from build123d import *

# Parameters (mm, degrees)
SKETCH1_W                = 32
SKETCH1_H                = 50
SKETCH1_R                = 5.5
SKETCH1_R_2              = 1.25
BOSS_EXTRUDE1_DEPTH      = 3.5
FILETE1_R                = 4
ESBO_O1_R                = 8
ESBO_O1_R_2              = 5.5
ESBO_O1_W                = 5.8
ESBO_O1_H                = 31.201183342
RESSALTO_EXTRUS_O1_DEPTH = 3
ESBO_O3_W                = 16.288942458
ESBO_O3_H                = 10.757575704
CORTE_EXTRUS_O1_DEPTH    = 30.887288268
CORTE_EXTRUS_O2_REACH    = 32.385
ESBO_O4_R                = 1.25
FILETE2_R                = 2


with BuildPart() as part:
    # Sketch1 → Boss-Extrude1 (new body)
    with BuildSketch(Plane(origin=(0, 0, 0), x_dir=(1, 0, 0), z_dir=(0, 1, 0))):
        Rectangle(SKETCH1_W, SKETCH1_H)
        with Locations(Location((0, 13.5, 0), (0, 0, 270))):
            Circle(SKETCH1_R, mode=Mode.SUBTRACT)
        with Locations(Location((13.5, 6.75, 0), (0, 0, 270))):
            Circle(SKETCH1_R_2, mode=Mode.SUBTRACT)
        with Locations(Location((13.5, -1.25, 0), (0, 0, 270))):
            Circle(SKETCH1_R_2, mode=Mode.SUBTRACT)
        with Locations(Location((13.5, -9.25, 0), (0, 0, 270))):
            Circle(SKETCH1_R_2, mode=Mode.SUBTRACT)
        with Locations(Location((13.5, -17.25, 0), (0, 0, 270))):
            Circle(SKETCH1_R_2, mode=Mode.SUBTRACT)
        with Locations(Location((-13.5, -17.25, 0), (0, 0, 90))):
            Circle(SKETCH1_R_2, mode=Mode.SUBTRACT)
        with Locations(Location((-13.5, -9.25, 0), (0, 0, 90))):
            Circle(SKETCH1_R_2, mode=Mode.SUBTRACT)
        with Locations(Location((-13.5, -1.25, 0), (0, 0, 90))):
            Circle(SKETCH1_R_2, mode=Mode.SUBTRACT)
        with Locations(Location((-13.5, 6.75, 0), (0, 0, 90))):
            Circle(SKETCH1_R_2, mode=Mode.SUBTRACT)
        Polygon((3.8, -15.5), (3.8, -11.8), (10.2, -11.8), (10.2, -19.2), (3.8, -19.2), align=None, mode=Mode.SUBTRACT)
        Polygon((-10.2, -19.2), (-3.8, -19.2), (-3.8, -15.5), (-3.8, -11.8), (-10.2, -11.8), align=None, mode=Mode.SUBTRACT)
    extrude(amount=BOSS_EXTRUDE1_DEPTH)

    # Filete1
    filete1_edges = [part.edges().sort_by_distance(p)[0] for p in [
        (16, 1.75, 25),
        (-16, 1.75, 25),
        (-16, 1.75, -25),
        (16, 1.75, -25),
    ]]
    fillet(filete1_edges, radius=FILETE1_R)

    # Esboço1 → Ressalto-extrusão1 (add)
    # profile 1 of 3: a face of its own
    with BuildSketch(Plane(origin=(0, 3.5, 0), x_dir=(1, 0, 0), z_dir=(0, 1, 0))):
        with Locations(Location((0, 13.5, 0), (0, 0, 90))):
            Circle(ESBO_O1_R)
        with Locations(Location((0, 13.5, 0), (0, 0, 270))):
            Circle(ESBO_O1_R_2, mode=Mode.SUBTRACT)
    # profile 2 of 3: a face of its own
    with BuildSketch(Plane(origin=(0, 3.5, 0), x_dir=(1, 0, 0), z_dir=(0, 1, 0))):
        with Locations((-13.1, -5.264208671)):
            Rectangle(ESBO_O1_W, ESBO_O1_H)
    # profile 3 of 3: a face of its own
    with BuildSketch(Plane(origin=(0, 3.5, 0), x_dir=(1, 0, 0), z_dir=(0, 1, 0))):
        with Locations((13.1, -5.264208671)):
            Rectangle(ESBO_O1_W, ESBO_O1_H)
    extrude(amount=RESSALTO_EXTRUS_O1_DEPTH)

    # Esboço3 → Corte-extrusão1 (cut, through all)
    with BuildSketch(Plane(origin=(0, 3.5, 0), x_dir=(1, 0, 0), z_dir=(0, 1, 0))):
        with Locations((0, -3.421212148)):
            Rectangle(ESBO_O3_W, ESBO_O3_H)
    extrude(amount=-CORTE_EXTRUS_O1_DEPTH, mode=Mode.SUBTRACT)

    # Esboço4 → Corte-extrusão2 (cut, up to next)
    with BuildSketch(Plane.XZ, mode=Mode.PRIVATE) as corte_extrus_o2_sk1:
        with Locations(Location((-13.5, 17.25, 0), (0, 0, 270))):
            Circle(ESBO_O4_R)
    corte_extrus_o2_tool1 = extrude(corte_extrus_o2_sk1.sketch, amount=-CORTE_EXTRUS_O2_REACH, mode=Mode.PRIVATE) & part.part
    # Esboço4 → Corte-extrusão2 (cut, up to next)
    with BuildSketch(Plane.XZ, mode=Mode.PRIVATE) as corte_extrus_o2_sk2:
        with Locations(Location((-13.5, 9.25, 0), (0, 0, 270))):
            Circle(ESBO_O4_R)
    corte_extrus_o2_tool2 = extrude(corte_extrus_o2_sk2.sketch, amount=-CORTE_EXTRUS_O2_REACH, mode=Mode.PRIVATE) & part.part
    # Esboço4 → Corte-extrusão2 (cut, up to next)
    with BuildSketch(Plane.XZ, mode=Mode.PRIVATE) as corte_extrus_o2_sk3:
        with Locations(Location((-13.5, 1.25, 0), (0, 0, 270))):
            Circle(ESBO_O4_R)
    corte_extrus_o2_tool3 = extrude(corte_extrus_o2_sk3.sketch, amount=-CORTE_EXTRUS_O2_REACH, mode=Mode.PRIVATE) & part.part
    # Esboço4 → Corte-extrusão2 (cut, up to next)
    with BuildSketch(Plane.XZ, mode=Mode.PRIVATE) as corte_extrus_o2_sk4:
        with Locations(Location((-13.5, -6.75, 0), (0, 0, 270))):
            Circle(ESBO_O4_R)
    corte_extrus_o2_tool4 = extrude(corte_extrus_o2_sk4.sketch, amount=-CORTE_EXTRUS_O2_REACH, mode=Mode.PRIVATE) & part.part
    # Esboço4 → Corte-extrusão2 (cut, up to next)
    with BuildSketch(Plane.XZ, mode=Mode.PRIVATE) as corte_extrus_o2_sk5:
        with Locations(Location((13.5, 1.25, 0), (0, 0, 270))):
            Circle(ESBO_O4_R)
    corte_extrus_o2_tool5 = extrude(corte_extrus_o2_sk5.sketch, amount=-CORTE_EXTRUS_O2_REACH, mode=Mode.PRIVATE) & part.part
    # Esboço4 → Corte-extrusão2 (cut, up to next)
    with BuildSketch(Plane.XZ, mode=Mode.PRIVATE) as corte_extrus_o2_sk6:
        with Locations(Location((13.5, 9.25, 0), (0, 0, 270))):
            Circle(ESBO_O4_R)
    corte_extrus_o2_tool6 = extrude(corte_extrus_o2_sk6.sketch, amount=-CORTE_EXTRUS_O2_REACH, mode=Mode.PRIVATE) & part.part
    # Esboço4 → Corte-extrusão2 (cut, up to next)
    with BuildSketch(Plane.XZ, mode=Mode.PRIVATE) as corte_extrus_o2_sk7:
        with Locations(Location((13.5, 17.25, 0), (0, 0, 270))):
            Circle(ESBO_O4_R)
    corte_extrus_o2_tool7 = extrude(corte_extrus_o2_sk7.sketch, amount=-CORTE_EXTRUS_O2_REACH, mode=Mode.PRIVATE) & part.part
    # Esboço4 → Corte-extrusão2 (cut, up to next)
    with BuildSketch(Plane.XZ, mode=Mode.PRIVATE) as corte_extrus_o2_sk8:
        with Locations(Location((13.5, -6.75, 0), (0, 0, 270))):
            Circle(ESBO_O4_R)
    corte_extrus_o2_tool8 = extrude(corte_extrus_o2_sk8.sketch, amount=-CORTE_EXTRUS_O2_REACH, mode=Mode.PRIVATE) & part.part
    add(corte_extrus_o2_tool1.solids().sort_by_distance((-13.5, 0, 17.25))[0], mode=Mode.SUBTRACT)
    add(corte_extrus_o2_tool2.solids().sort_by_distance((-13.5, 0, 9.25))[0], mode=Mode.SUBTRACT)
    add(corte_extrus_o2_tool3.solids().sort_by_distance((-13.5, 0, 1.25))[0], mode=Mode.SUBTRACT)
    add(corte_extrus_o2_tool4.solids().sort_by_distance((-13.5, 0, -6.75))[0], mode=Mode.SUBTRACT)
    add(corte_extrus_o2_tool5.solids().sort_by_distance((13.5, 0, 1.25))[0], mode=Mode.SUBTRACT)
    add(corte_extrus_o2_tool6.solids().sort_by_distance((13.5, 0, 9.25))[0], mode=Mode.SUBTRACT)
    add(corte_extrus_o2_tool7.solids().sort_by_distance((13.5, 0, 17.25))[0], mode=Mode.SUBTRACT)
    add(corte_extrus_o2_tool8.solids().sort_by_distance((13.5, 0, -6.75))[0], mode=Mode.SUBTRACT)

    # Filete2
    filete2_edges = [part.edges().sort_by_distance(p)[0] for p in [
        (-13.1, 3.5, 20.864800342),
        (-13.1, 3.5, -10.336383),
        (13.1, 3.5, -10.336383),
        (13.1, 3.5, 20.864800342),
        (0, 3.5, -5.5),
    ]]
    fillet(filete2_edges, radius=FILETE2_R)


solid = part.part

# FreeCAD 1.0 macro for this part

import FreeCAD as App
import Part
import Sketcher


def edges_at(feature, points):
    """Names of the edges that pass closest to the given points."""
    edges = feature.Shape.Edges
    near = lambda p: min(range(len(edges)), key=lambda i: edges[i].distToShape(Part.Vertex(*p))[0])
    return sorted({f"Edge{near(p) + 1}" for p in points})


def add_polygon(sketch, points):
    """Adds a closed chain of lines whose ends are joined by coincident constraints."""
    first, n = sketch.GeometryCount, len(points)
    for a, b in zip(points, points[1:] + points[:1]):
        sketch.addGeometry(Part.LineSegment(App.Vector(*a, 0), App.Vector(*b, 0)), False)
    for i in range(n):
        sketch.addConstraint(Sketcher.Constraint("Coincident", first + i, 2, first + (i + 1) % n, 1))

doc = App.newDocument("Part")
body = doc.addObject("PartDesign::Body", "Body")

# Sketch on XZ plane
sketch1 = doc.addObject("Sketcher::SketchObject", "Sketch")
body.addObject(sketch1)
sketch1.AttachmentSupport = (doc.XZ_Plane, [""])
sketch1.MapMode = "FlatFace"
add_polygon(sketch1, [(-16, -25), (-16, 25), (16, 25), (16, -25)])  # lines 0-3
sketch1.addGeometry(Part.Circle(App.Vector(-13.5, 17.2, 0), App.Vector(0, 0, 1), 1.2), False)  # 4
add_polygon(sketch1, [(-3.8, 19.2), (-10.2, 19.2), (-10.2, 11.8), (-3.8, 11.8)])  # lines 5-8
sketch1.addGeometry(Part.Circle(App.Vector(-13.5, 9.2, 0), App.Vector(0, 0, 1), 1.2), False)  # 9
sketch1.addGeometry(Part.Circle(App.Vector(-13.5, 1.2, 0), App.Vector(0, 0, 1), 1.2), False)  # 10
add_polygon(sketch1, [(3.8, 19.2), (3.8, 11.8), (10.2, 11.8), (10.2, 19.2)])  # lines 11-14
sketch1.addGeometry(Part.Circle(App.Vector(13.5, 17.2, 0), App.Vector(0, 0, 1), 1.2), False)  # 15
sketch1.addGeometry(Part.Circle(App.Vector(13.5, 9.2, 0), App.Vector(0, 0, 1), 1.2), False)  # 16
sketch1.addGeometry(Part.Circle(App.Vector(13.5, 1.2, 0), App.Vector(0, 0, 1), 1.2), False)  # 17
sketch1.addGeometry(Part.Circle(App.Vector(-13.5, -6.8, 0), App.Vector(0, 0, 1), 1.2), False)  # 18
sketch1.addGeometry(Part.Circle(App.Vector(13.5, -6.8, 0), App.Vector(0, 0, 1), 1.2), False)  # 19
sketch1.addGeometry(Part.Circle(App.Vector(0, -13.5, 0), App.Vector(0, 0, 1), 5.5), False)  # 20
sketch1.addConstraint([
    Sketcher.Constraint("Vertical", 0),
    Sketcher.Constraint("Horizontal", 1),
    Sketcher.Constraint("Vertical", 2),
    Sketcher.Constraint("Horizontal", 3),
    Sketcher.Constraint("Horizontal", 5),
    Sketcher.Constraint("Vertical", 6),
    Sketcher.Constraint("Horizontal", 7),
    Sketcher.Constraint("Vertical", 8),
    Sketcher.Constraint("Vertical", 11),
    Sketcher.Constraint("Horizontal", 12),
    Sketcher.Constraint("Vertical", 13),
    Sketcher.Constraint("Horizontal", 14),
    Sketcher.Constraint("Equal", 4, 9),
    Sketcher.Constraint("Equal", 9, 10),
    Sketcher.Constraint("Equal", 10, 15),
    Sketcher.Constraint("Equal", 15, 16),
    Sketcher.Constraint("Equal", 16, 17),
    Sketcher.Constraint("Equal", 17, 18),
    Sketcher.Constraint("Equal", 18, 19),
    Sketcher.Constraint("Symmetric", 0, 2, 2, 2, -1, 1),
    Sketcher.Constraint("Symmetric", 4, 3, 15, 3, -2),
    Sketcher.Constraint("Symmetric", 9, 3, 16, 3, -2),
    Sketcher.Constraint("Symmetric", 10, 3, 17, 3, -2),
    Sketcher.Constraint("Symmetric", 18, 3, 19, 3, -2),
    Sketcher.Constraint("Symmetric", 7, 2, 11, 2, -2),
    Sketcher.Constraint("Symmetric", 5, 2, 13, 2, -2),
    Sketcher.Constraint("PointOnObject", 20, 3, -2),
    Sketcher.Constraint("Vertical", 4, 3, 9, 3),
    Sketcher.Constraint("Vertical", 9, 3, 10, 3),
    Sketcher.Constraint("Vertical", 10, 3, 18, 3),
    Sketcher.Constraint("Diameter", 20, 11.0),
    Sketcher.Constraint("Diameter", 4, 2.5),
    Sketcher.Constraint("DistanceX", 1, 1, 1, 2, 32.0),
    Sketcher.Constraint("DistanceY", 0, 1, 0, 2, 50.0),
    Sketcher.Constraint("DistanceX", 5, 2, 5, 1, 6.4),
    Sketcher.Constraint("DistanceY", 6, 2, 6, 1, 7.4),
    Sketcher.Constraint("DistanceY", 9, 3, 4, 3, 8.0),
    Sketcher.Constraint("DistanceY", 10, 3, 9, 3, 8.0),
    Sketcher.Constraint("DistanceX", 4, 3, 15, 3, 27.0),
    Sketcher.Constraint("DistanceY", 18, 3, 10, 3, 8.0),
    Sketcher.Constraint("DistanceX", 6, 2, 11, 2, 14.0),
    Sketcher.Constraint("DistanceY", 20, 3, -1, 1, 13.5),
    Sketcher.Constraint("DistanceY", -1, 1, 5, 2, 19.2),
    Sketcher.Constraint("DistanceY", -1, 1, 4, 3, 17.25),
])
pad1 = doc.addObject("PartDesign::Pad", "Pad")
body.addObject(pad1)
pad1.Profile = sketch1
pad1.Length = 3.5
pad1.Reversed = True
doc.recompute()

fillet = doc.addObject("PartDesign::Fillet", "Fillet")
body.addObject(fillet)
fillet.Base = (pad1, edges_at(pad1, [
    (16, 1.75, 25),
    (-16, 1.75, 25),
    (-16, 1.75, -25),
    (16, 1.75, -25),
]))
fillet.Radius = 4

# Sketch on XZ plane
sketch2 = doc.addObject("Sketcher::SketchObject", "Sketch001")
body.addObject(sketch2)
sketch2.AttachmentSupport = (doc.XZ_Plane, [""])
sketch2.MapMode = "FlatFace"
sketch2.AttachmentOffset = App.Placement(App.Vector(0, 0, -3.5), App.Rotation())
sketch2.addGeometry(Part.Circle(App.Vector(0, -14, 0), App.Vector(0, 0, 1), 8), False)  # 0
sketch2.addGeometry(Part.Circle(App.Vector(0, -14, 0), App.Vector(0, 0, 1), 6), False)  # 1
add_polygon(sketch2, [(-16, -10), (-16, 21), (-10, 21), (-10, -10)])  # lines 2-5
add_polygon(sketch2, [(10, -10), (10, 21), (16, 21), (16, -10)])  # lines 6-9
sketch2.addConstraint([
    Sketcher.Constraint("Vertical", 2),
    Sketcher.Constraint("Horizontal", 3),
    Sketcher.Constraint("Vertical", 4),
    Sketcher.Constraint("Horizontal", 5),
    Sketcher.Constraint("Vertical", 6),
    Sketcher.Constraint("Horizontal", 7),
    Sketcher.Constraint("Vertical", 8),
    Sketcher.Constraint("Horizontal", 9),
    Sketcher.Constraint("Coincident", 1, 3, 0, 3),
    Sketcher.Constraint("Symmetric", 3, 2, 6, 2, -2),
    Sketcher.Constraint("Symmetric", 5, 2, 8, 2, -2),
    Sketcher.Constraint("PointOnObject", 0, 3, -2),
    Sketcher.Constraint("Diameter", 0, 16.0),
    Sketcher.Constraint("Diameter", 1, 11.0),
    Sketcher.Constraint("DistanceX", 3, 1, 3, 2, 5.8),
    Sketcher.Constraint("DistanceX", 2, 2, -1, 1, 16.0),
    Sketcher.Constraint("DistanceY", 0, 3, -1, 1, 13.5),
    Sketcher.Constraint("DistanceY", -1, 1, 2, 2, 20.8648),
    Sketcher.Constraint("DistanceY", 2, 1, 2, 2, 31.201183),
])
pad2 = doc.addObject("PartDesign::Pad", "Pad001")
body.addObject(pad2)
pad2.Profile = sketch2
pad2.Length = 3
pad2.Reversed = True

# Sketch on XZ plane
sketch3 = doc.addObject("Sketcher::SketchObject", "Sketch002")
body.addObject(sketch3)
sketch3.AttachmentSupport = (doc.XZ_Plane, [""])
sketch3.MapMode = "FlatFace"
sketch3.AttachmentOffset = App.Placement(App.Vector(0, 0, -3.5), App.Rotation())
add_polygon(sketch3, [(-8, -2), (-8, 9), (8, 9), (8, -2)])  # lines 0-3
sketch3.addConstraint([
    Sketcher.Constraint("Vertical", 0),
    Sketcher.Constraint("Horizontal", 1),
    Sketcher.Constraint("Vertical", 2),
    Sketcher.Constraint("Horizontal", 3),
    Sketcher.Constraint("DistanceY", -1, 1, 0, 2, 8.8),
    Sketcher.Constraint("DistanceX", 1, 1, 1, 2, 16.288942),
    Sketcher.Constraint("DistanceY", 0, 1, 0, 2, 10.757576),
    Sketcher.Constraint("DistanceX", 0, 2, -1, 1, 8.144471),
])
pocket1 = doc.addObject("PartDesign::Pocket", "Pocket")
body.addObject(pocket1)
pocket1.Profile = sketch3
pocket1.Type = "ThroughAll"
pocket1.Reversed = True

# Sketch on XZ plane
sketch4 = doc.addObject("Sketcher::SketchObject", "Sketch003")
body.addObject(sketch4)
sketch4.AttachmentSupport = (doc.XZ_Plane, [""])
sketch4.MapMode = "FlatFace"
sketch4.addGeometry(Part.Circle(App.Vector(-13.5, 17.2, 0), App.Vector(0, 0, 1), 1.2), False)
sketch4.addConstraint([
    Sketcher.Constraint("Diameter", 0, 2.5),
    Sketcher.Constraint("DistanceX", 0, 3, -1, 1, 13.5),
    Sketcher.Constraint("DistanceY", -1, 1, 0, 3, 17.25),
])
pocket2 = doc.addObject("PartDesign::Pocket", "Pocket001")
body.addObject(pocket2)
pocket2.Profile = sketch4
pocket2.Length = 6.5

# Sketch on XZ plane
sketch5 = doc.addObject("Sketcher::SketchObject", "Sketch004")
body.addObject(sketch5)
sketch5.AttachmentSupport = (doc.XZ_Plane, [""])
sketch5.MapMode = "FlatFace"
sketch5.addGeometry(Part.Circle(App.Vector(-13.5, 9.2, 0), App.Vector(0, 0, 1), 1.2), False)
sketch5.addConstraint([
    Sketcher.Constraint("Diameter", 0, 2.5),
    Sketcher.Constraint("DistanceX", 0, 3, -1, 1, 13.5),
    Sketcher.Constraint("DistanceY", -1, 1, 0, 3, 9.25),
])
pocket3 = doc.addObject("PartDesign::Pocket", "Pocket002")
body.addObject(pocket3)
pocket3.Profile = sketch5
pocket3.Length = 6.5

# Sketch on XZ plane
sketch6 = doc.addObject("Sketcher::SketchObject", "Sketch005")
body.addObject(sketch6)
sketch6.AttachmentSupport = (doc.XZ_Plane, [""])
sketch6.MapMode = "FlatFace"
sketch6.addGeometry(Part.Circle(App.Vector(-13.5, 1.2, 0), App.Vector(0, 0, 1), 1.2), False)
sketch6.addConstraint([
    Sketcher.Constraint("Diameter", 0, 2.5),
    Sketcher.Constraint("DistanceX", 0, 3, -1, 1, 13.5),
    Sketcher.Constraint("DistanceY", -1, 1, 0, 3, 1.25),
])
pocket4 = doc.addObject("PartDesign::Pocket", "Pocket003")
body.addObject(pocket4)
pocket4.Profile = sketch6
pocket4.Length = 6.5

# Sketch on XZ plane
sketch7 = doc.addObject("Sketcher::SketchObject", "Sketch006")
body.addObject(sketch7)
sketch7.AttachmentSupport = (doc.XZ_Plane, [""])
sketch7.MapMode = "FlatFace"
sketch7.addGeometry(Part.Circle(App.Vector(-13.5, -6.8, 0), App.Vector(0, 0, 1), 1.2), False)
sketch7.addConstraint([
    Sketcher.Constraint("Diameter", 0, 2.5),
    Sketcher.Constraint("DistanceX", 0, 3, -1, 1, 13.5),
    Sketcher.Constraint("DistanceY", 0, 3, -1, 1, 6.75),
])
pocket5 = doc.addObject("PartDesign::Pocket", "Pocket004")
body.addObject(pocket5)
pocket5.Profile = sketch7
pocket5.Length = 6.5

# Sketch on XZ plane
sketch8 = doc.addObject("Sketcher::SketchObject", "Sketch007")
body.addObject(sketch8)
sketch8.AttachmentSupport = (doc.XZ_Plane, [""])
sketch8.MapMode = "FlatFace"
sketch8.addGeometry(Part.Circle(App.Vector(13.5, 1.2, 0), App.Vector(0, 0, 1), 1.2), False)
sketch8.addConstraint([
    Sketcher.Constraint("Diameter", 0, 2.5),
    Sketcher.Constraint("DistanceX", -1, 1, 0, 3, 13.5),
    Sketcher.Constraint("DistanceY", -1, 1, 0, 3, 1.25),
])
pocket6 = doc.addObject("PartDesign::Pocket", "Pocket005")
body.addObject(pocket6)
pocket6.Profile = sketch8
pocket6.Length = 6.5

# Sketch on XZ plane
sketch9 = doc.addObject("Sketcher::SketchObject", "Sketch008")
body.addObject(sketch9)
sketch9.AttachmentSupport = (doc.XZ_Plane, [""])
sketch9.MapMode = "FlatFace"
sketch9.addGeometry(Part.Circle(App.Vector(13.5, 9.2, 0), App.Vector(0, 0, 1), 1.2), False)
sketch9.addConstraint([
    Sketcher.Constraint("Diameter", 0, 2.5),
    Sketcher.Constraint("DistanceX", -1, 1, 0, 3, 13.5),
    Sketcher.Constraint("DistanceY", -1, 1, 0, 3, 9.25),
])
pocket7 = doc.addObject("PartDesign::Pocket", "Pocket006")
body.addObject(pocket7)
pocket7.Profile = sketch9
pocket7.Length = 6.5

# Sketch on XZ plane
sketch10 = doc.addObject("Sketcher::SketchObject", "Sketch009")
body.addObject(sketch10)
sketch10.AttachmentSupport = (doc.XZ_Plane, [""])
sketch10.MapMode = "FlatFace"
sketch10.addGeometry(Part.Circle(App.Vector(13.5, 17.2, 0), App.Vector(0, 0, 1), 1.2), False)
sketch10.addConstraint([
    Sketcher.Constraint("Diameter", 0, 2.5),
    Sketcher.Constraint("DistanceX", -1, 1, 0, 3, 13.5),
    Sketcher.Constraint("DistanceY", -1, 1, 0, 3, 17.25),
])
pocket8 = doc.addObject("PartDesign::Pocket", "Pocket007")
body.addObject(pocket8)
pocket8.Profile = sketch10
pocket8.Length = 6.5

# Sketch on XZ plane
sketch11 = doc.addObject("Sketcher::SketchObject", "Sketch010")
body.addObject(sketch11)
sketch11.AttachmentSupport = (doc.XZ_Plane, [""])
sketch11.MapMode = "FlatFace"
sketch11.addGeometry(Part.Circle(App.Vector(13.5, -6.8, 0), App.Vector(0, 0, 1), 1.2), False)
sketch11.addConstraint([
    Sketcher.Constraint("Diameter", 0, 2.5),
    Sketcher.Constraint("DistanceX", -1, 1, 0, 3, 13.5),
    Sketcher.Constraint("DistanceY", 0, 3, -1, 1, 6.75),
])
pocket9 = doc.addObject("PartDesign::Pocket", "Pocket008")
body.addObject(pocket9)
pocket9.Profile = sketch11
pocket9.Length = 6.5
doc.recompute()

fillet2 = doc.addObject("PartDesign::Fillet", "Fillet001")
body.addObject(fillet2)
fillet2.Base = (pocket9, edges_at(pocket9, [
    (-13.1, 3.5, 20.865),
    (-13.1, 3.5, -10.336),
    (13.1, 3.5, -10.336),
    (13.1, 3.5, 20.865),
    (0, 3.5, -5.5),
]))
fillet2.Radius = 2

doc.recompute()
